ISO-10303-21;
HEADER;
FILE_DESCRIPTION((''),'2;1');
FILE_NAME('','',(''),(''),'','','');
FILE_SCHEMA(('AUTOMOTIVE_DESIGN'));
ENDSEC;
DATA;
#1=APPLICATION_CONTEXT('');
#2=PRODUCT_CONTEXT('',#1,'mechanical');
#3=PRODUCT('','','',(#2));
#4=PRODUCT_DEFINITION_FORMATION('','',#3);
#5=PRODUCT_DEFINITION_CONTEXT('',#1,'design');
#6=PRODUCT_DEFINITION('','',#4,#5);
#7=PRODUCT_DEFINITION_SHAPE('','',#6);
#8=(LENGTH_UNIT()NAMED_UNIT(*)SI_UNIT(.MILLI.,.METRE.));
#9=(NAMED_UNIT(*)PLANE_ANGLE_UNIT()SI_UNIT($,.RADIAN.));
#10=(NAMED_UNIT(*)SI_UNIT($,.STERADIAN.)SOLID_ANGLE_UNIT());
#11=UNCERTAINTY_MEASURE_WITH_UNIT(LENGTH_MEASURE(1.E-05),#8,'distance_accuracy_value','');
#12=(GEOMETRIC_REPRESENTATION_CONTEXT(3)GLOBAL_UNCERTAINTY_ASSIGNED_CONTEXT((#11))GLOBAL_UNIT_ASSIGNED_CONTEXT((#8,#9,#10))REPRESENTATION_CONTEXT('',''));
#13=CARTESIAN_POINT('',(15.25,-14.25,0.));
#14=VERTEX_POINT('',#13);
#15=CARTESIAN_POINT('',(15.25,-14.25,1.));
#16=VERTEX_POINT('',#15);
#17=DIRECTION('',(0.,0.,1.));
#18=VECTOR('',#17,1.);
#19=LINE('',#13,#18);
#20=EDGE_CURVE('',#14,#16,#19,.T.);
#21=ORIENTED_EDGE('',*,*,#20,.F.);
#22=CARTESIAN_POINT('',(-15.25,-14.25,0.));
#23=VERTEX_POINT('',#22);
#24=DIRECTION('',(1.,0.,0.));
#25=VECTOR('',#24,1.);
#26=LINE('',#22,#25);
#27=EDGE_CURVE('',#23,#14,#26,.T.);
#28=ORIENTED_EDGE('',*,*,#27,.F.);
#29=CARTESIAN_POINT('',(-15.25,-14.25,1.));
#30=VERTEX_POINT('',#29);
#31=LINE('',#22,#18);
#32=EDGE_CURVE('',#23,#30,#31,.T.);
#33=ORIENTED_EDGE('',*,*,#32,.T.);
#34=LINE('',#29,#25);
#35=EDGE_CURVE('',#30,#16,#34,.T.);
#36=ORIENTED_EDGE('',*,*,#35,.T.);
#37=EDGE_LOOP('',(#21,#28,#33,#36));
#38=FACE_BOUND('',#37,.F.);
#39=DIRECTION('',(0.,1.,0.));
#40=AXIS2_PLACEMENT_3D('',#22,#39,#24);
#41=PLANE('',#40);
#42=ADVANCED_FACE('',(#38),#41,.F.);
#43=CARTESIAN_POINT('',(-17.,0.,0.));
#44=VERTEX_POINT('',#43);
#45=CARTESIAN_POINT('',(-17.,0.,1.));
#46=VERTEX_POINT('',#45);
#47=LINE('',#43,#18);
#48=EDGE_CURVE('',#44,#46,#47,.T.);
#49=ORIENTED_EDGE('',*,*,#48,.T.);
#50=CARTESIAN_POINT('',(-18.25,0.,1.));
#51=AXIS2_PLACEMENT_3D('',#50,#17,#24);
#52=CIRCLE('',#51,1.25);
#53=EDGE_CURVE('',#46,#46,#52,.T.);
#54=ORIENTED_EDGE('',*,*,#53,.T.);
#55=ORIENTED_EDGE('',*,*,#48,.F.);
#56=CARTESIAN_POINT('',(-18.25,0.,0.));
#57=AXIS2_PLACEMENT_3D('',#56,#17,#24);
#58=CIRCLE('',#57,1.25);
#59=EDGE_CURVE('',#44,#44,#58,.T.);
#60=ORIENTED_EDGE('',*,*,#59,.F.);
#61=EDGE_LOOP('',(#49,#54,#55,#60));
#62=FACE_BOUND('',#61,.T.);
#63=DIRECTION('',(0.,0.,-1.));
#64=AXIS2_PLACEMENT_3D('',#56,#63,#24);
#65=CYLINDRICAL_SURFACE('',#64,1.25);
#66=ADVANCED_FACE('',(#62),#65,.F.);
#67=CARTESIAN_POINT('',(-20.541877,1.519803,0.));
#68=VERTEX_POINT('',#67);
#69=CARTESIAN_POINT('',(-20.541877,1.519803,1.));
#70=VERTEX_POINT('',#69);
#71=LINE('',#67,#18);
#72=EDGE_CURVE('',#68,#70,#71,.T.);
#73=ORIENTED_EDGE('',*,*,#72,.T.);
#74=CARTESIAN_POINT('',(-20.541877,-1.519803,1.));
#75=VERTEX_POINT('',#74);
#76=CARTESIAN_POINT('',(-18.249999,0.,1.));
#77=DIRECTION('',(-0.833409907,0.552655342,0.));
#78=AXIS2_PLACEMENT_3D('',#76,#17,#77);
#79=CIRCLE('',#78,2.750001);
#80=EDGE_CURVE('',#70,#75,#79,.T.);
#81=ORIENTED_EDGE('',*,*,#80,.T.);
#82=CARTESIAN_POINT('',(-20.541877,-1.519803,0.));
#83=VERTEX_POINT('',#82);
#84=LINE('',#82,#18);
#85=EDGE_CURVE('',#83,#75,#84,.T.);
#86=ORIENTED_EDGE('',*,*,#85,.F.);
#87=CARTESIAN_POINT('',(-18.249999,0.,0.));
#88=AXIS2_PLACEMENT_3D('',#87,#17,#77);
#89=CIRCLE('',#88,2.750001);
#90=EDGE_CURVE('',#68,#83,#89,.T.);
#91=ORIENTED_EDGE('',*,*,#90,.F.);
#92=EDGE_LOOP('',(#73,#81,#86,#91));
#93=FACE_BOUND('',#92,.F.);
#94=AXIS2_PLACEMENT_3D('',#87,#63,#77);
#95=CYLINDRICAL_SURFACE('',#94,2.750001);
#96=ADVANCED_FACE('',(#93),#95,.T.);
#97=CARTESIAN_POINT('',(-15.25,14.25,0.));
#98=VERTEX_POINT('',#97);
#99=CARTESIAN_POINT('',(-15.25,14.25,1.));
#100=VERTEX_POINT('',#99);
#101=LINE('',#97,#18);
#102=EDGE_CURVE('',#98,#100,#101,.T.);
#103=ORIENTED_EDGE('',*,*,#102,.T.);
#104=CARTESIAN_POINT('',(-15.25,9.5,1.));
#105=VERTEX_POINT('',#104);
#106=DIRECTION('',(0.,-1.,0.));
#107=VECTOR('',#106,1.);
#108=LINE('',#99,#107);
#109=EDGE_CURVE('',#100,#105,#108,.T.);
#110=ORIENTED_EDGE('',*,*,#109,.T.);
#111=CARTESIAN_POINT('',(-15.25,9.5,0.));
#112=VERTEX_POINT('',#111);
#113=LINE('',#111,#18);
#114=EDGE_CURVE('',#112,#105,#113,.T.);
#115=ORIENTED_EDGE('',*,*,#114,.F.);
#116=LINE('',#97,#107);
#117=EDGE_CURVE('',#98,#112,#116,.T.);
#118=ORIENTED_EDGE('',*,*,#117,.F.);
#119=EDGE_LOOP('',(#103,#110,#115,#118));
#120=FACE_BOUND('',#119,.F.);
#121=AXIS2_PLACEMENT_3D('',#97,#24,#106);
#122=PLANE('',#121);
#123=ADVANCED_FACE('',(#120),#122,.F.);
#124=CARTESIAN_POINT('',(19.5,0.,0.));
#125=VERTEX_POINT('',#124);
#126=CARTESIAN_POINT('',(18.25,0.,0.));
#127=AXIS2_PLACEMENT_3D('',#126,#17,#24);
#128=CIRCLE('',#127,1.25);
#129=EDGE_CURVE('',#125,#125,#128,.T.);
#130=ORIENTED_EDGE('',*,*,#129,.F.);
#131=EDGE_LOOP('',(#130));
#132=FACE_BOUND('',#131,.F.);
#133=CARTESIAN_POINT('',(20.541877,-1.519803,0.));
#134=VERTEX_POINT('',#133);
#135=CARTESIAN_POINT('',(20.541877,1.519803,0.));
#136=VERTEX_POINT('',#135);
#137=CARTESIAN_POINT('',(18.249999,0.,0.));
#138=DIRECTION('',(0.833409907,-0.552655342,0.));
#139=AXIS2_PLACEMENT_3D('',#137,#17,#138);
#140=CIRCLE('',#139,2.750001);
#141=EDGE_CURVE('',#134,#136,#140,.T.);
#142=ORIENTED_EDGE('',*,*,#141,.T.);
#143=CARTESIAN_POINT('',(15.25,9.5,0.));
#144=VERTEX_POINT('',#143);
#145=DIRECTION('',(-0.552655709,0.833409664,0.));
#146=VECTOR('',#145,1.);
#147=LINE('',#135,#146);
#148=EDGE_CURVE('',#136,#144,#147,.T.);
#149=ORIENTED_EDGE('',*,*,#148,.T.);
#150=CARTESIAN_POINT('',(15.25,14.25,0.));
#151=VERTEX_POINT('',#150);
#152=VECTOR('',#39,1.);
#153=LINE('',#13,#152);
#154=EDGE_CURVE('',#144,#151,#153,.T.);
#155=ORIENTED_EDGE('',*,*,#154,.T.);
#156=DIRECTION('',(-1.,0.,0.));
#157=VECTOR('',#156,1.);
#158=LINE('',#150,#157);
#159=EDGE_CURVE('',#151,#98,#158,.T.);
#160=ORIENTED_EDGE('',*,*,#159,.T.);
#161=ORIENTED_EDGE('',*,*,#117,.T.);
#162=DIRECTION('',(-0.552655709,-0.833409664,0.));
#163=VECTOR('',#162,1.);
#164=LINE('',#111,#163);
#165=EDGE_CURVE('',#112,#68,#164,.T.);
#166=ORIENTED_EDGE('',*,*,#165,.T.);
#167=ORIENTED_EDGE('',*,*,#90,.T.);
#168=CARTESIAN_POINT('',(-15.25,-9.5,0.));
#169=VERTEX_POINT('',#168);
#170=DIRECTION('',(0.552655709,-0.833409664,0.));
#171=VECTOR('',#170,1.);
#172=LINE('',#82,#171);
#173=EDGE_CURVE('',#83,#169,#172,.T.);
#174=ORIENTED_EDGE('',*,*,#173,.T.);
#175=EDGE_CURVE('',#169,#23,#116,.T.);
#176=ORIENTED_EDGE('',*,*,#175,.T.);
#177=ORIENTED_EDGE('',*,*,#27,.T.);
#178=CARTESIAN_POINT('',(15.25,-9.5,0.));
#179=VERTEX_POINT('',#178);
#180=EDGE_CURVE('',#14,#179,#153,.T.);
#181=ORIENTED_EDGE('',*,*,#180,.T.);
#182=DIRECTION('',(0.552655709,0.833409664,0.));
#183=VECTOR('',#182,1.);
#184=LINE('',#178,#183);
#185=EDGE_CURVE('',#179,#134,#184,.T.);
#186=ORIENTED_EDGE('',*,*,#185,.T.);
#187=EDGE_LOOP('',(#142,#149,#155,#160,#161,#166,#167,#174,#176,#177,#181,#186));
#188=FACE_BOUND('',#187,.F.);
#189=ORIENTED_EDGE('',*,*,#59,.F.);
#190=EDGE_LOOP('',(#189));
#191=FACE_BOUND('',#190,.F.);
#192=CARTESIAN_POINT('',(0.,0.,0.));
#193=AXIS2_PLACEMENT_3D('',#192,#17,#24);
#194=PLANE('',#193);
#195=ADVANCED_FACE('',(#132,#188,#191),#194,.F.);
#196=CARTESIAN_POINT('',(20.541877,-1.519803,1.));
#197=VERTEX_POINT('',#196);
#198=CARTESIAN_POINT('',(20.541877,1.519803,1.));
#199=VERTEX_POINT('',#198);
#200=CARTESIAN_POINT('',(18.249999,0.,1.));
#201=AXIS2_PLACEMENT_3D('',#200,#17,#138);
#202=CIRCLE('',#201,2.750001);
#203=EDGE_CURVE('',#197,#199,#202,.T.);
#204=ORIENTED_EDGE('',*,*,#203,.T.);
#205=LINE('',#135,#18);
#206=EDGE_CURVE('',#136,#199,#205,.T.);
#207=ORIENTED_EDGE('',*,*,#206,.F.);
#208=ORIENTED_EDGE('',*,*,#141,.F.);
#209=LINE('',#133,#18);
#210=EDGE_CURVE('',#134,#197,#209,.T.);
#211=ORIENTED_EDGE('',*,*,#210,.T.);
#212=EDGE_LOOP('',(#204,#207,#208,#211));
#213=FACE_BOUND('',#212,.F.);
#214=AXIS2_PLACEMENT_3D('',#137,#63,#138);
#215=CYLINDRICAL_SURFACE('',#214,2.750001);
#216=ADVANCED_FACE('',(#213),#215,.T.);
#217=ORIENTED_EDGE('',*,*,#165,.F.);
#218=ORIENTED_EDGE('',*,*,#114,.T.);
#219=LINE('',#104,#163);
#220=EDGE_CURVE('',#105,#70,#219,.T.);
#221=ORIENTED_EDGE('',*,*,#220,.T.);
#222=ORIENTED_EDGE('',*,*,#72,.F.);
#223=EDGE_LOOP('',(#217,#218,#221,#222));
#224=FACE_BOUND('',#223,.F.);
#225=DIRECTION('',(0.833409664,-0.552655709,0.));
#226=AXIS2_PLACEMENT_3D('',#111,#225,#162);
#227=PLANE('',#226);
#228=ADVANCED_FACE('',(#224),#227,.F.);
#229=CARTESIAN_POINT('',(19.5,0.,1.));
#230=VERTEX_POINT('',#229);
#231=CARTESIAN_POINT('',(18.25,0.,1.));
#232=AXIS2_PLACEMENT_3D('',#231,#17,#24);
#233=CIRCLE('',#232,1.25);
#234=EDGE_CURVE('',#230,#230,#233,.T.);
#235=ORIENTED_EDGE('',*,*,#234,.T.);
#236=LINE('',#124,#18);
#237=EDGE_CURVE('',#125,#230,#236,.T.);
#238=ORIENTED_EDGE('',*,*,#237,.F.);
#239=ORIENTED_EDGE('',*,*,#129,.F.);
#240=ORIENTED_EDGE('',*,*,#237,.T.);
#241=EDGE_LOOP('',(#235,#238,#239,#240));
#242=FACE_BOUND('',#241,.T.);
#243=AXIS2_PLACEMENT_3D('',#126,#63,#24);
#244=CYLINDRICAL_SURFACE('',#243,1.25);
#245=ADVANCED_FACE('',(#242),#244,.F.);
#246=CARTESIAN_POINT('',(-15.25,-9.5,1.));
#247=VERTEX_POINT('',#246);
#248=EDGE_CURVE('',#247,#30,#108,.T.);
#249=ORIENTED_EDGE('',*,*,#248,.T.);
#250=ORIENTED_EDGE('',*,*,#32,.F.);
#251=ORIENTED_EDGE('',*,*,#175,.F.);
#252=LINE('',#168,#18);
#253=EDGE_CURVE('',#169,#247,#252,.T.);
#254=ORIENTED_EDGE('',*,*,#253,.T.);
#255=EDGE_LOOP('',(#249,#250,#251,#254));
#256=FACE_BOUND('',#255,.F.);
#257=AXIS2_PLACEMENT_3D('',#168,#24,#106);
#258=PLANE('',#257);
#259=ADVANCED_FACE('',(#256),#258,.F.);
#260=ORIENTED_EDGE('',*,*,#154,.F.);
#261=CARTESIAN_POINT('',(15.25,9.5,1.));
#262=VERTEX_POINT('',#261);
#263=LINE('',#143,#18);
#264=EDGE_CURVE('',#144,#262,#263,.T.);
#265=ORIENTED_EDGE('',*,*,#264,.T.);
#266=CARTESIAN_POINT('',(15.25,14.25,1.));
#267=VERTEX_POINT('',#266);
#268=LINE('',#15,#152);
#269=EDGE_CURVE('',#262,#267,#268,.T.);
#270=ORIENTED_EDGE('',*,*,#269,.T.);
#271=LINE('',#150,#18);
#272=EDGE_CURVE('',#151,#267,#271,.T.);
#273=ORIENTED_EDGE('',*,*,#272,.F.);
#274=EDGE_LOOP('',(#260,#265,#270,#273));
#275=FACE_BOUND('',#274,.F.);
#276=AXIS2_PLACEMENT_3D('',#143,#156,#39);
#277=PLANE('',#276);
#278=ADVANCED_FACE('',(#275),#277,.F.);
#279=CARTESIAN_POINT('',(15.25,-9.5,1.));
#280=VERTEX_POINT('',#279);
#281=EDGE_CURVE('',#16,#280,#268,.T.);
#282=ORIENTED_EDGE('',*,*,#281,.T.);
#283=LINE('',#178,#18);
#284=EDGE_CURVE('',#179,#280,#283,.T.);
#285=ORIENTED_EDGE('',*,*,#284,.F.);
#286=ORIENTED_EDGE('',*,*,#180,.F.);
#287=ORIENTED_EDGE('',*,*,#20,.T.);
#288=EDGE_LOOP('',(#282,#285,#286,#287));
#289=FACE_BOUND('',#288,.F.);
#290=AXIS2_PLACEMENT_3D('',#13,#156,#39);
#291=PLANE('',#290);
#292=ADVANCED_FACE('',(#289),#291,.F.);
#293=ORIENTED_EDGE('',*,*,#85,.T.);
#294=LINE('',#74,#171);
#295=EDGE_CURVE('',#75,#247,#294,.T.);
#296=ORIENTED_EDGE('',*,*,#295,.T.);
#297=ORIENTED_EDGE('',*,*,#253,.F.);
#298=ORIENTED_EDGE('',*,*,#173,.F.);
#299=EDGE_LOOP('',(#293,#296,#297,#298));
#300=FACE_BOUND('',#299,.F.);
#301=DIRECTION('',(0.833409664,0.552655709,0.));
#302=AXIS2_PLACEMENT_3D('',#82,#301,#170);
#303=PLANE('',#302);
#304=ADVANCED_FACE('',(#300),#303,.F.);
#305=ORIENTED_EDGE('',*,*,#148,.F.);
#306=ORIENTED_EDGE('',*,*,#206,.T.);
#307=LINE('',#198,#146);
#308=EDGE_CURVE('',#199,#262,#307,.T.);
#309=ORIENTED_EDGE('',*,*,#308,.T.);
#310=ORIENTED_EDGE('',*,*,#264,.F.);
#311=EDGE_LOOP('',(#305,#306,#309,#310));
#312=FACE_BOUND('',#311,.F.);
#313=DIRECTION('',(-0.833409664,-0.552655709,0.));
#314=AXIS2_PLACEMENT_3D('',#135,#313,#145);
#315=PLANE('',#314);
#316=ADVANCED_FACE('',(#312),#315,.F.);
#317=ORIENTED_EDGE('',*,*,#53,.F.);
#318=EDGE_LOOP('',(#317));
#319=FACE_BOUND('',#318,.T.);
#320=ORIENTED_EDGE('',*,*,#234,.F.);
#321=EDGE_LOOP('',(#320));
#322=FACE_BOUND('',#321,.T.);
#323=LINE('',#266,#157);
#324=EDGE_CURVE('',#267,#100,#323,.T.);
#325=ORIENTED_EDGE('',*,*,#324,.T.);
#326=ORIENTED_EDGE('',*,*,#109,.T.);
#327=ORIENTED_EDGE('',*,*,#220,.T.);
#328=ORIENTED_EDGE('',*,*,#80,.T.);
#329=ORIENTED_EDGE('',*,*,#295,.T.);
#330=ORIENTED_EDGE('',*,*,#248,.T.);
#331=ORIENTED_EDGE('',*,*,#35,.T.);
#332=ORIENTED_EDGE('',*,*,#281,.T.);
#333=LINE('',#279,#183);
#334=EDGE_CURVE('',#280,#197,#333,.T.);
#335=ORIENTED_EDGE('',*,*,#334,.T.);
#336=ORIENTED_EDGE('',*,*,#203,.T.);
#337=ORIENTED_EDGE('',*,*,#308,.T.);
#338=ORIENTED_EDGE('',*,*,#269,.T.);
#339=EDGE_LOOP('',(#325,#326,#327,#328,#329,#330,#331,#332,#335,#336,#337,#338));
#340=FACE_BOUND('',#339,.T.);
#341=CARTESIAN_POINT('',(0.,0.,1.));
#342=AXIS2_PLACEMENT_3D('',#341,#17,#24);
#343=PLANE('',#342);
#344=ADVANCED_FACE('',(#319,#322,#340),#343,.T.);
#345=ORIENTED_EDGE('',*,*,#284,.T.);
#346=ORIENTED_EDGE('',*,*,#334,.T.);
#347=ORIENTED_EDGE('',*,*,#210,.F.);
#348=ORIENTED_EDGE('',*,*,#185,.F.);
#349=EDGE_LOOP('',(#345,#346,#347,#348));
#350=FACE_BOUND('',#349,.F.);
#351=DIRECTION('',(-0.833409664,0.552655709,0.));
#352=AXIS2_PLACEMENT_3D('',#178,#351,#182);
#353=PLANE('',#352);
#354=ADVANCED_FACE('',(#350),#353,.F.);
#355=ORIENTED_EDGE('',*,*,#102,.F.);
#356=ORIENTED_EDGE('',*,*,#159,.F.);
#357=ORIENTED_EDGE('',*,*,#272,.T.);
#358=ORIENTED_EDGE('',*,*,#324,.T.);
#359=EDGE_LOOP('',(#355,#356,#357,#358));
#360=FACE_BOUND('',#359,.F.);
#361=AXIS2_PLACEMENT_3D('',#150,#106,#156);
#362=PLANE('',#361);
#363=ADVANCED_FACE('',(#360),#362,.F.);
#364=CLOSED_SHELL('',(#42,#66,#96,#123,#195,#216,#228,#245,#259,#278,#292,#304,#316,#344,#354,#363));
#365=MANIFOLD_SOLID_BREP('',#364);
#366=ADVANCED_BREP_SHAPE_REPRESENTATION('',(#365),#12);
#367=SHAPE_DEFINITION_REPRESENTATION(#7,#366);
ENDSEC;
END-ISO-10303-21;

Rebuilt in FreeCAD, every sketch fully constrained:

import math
import FreeCAD as App
import Part
import Sketcher

V = App.Vector

doc = App.newDocument("Part")
body = doc.addObject("PartDesign::Body", "Body")

# Sketch on XY plane
sketch1 = doc.addObject("Sketcher::SketchObject", "Sketch")
body.addObject(sketch1)
sketch1.AttachmentSupport = (doc.XY_Plane, [""])
sketch1.MapMode = "FlatFace"
sketch1.addGeometry(Part.LineSegment(V(15.2, 14.2, 0), V(-15.2, 14.2, 0)), False)
sketch1.addGeometry(Part.LineSegment(V(-15.2, 14.2, 0), V(-15.2, 9.5, 0)), False)
sketch1.addGeometry(Part.LineSegment(V(-15.2, 9.5, 0), V(-20.5, 1.5, 0)), False)
sketch1.addGeometry(Part.ArcOfCircle(Part.Circle(V(-18.2, 0, 0), V(0, 0, 1), 2.8), math.radians(146), math.radians(214)), False)
sketch1.addGeometry(Part.LineSegment(V(-20.5, -1.5, 0), V(-15.2, -9.5, 0)), False)
sketch1.addGeometry(Part.LineSegment(V(-15.2, -9.5, 0), V(-15.2, -14.2, 0)), False)
sketch1.addGeometry(Part.LineSegment(V(-15.2, -14.2, 0), V(15.2, -14.2, 0)), False)
sketch1.addGeometry(Part.LineSegment(V(15.2, -14.2, 0), V(15.2, -9.5, 0)), False)
sketch1.addGeometry(Part.LineSegment(V(15.2, -9.5, 0), V(20.5, -1.5, 0)), False)
sketch1.addGeometry(Part.ArcOfCircle(Part.Circle(V(18.2, 0, 0), V(0, 0, 1), 2.8), math.radians(-34), math.radians(34)), False)
sketch1.addGeometry(Part.LineSegment(V(20.5, 1.5, 0), V(15.2, 9.5, 0)), False)
sketch1.addGeometry(Part.LineSegment(V(15.2, 9.5, 0), V(15.2, 14.2, 0)), False)
sketch1.addGeometry(Part.Circle(V(-18.2, 0, 0), V(0, 0, 1), 1.2), False)
sketch1.addGeometry(Part.Circle(V(18.2, 0, 0), V(0, 0, 1), 1.2), False)
sketch1.addConstraint(Sketcher.Constraint("Coincident", 0, 2, 1, 1))
sketch1.addConstraint(Sketcher.Constraint("Coincident", 1, 2, 2, 1))
sketch1.addConstraint(Sketcher.Constraint("Tangent", 2, 2, 3, 1))
sketch1.addConstraint(Sketcher.Constraint("Tangent", 3, 2, 4, 1))
sketch1.addConstraint(Sketcher.Constraint("Coincident", 4, 2, 5, 1))
sketch1.addConstraint(Sketcher.Constraint("Coincident", 5, 2, 6, 1))
sketch1.addConstraint(Sketcher.Constraint("Coincident", 6, 2, 7, 1))
sketch1.addConstraint(Sketcher.Constraint("Coincident", 7, 2, 8, 1))
sketch1.addConstraint(Sketcher.Constraint("Tangent", 8, 2, 9, 1))
sketch1.addConstraint(Sketcher.Constraint("Tangent", 9, 2, 10, 1))
sketch1.addConstraint(Sketcher.Constraint("Coincident", 10, 2, 11, 1))
sketch1.addConstraint(Sketcher.Constraint("Coincident", 11, 2, 0, 1))
sketch1.addConstraint(Sketcher.Constraint("Horizontal", 0))
sketch1.addConstraint(Sketcher.Constraint("Vertical", 1))
sketch1.addConstraint(Sketcher.Constraint("Vertical", 5))
sketch1.addConstraint(Sketcher.Constraint("Horizontal", 6))
sketch1.addConstraint(Sketcher.Constraint("Vertical", 7))
sketch1.addConstraint(Sketcher.Constraint("Vertical", 11))
sketch1.addConstraint(Sketcher.Constraint("Coincident", 12, 3, 3, 3))
sketch1.addConstraint(Sketcher.Constraint("Coincident", 13, 3, 9, 3))
sketch1.addConstraint(Sketcher.Constraint("Equal", 3, 9))
sketch1.addConstraint(Sketcher.Constraint("Equal", 12, 13))
sketch1.addConstraint(Sketcher.Constraint("Symmetric", 3, 3, 9, 3, -1, 1))
sketch1.addConstraint(Sketcher.Constraint("Symmetric", 0, 2, 6, 2, -1, 1))
sketch1.addConstraint(Sketcher.Constraint("Symmetric", 4, 2, 10, 2, -1, 1))
sketch1.addConstraint(Sketcher.Constraint("Symmetric", 4, 2, 7, 2, -2))
sketch1.addConstraint(Sketcher.Constraint("Symmetric", 2, 2, 9, 2, -2))
sketch1.addConstraint(Sketcher.Constraint("Diameter", 12, 2.5))
sketch1.addConstraint(Sketcher.Constraint("Radius", 3, 2.750001))
sketch1.addConstraint(Sketcher.Constraint("DistanceX", 0, 2, 0, 1, 30.5))
sketch1.addConstraint(Sketcher.Constraint("DistanceX", 3, 3, 0, 2, 2.999999))
sketch1.addConstraint(Sketcher.Constraint("DistanceY", 4, 2, 1, 2, 19.0))
sketch1.addConstraint(Sketcher.Constraint("DistanceY", 1, 2, 1, 1, 4.75))
pad1 = doc.addObject("PartDesign::Pad", "Pad")
body.addObject(pad1)
pad1.Profile = sketch1
pad1.Length = 1

doc.recompute()
